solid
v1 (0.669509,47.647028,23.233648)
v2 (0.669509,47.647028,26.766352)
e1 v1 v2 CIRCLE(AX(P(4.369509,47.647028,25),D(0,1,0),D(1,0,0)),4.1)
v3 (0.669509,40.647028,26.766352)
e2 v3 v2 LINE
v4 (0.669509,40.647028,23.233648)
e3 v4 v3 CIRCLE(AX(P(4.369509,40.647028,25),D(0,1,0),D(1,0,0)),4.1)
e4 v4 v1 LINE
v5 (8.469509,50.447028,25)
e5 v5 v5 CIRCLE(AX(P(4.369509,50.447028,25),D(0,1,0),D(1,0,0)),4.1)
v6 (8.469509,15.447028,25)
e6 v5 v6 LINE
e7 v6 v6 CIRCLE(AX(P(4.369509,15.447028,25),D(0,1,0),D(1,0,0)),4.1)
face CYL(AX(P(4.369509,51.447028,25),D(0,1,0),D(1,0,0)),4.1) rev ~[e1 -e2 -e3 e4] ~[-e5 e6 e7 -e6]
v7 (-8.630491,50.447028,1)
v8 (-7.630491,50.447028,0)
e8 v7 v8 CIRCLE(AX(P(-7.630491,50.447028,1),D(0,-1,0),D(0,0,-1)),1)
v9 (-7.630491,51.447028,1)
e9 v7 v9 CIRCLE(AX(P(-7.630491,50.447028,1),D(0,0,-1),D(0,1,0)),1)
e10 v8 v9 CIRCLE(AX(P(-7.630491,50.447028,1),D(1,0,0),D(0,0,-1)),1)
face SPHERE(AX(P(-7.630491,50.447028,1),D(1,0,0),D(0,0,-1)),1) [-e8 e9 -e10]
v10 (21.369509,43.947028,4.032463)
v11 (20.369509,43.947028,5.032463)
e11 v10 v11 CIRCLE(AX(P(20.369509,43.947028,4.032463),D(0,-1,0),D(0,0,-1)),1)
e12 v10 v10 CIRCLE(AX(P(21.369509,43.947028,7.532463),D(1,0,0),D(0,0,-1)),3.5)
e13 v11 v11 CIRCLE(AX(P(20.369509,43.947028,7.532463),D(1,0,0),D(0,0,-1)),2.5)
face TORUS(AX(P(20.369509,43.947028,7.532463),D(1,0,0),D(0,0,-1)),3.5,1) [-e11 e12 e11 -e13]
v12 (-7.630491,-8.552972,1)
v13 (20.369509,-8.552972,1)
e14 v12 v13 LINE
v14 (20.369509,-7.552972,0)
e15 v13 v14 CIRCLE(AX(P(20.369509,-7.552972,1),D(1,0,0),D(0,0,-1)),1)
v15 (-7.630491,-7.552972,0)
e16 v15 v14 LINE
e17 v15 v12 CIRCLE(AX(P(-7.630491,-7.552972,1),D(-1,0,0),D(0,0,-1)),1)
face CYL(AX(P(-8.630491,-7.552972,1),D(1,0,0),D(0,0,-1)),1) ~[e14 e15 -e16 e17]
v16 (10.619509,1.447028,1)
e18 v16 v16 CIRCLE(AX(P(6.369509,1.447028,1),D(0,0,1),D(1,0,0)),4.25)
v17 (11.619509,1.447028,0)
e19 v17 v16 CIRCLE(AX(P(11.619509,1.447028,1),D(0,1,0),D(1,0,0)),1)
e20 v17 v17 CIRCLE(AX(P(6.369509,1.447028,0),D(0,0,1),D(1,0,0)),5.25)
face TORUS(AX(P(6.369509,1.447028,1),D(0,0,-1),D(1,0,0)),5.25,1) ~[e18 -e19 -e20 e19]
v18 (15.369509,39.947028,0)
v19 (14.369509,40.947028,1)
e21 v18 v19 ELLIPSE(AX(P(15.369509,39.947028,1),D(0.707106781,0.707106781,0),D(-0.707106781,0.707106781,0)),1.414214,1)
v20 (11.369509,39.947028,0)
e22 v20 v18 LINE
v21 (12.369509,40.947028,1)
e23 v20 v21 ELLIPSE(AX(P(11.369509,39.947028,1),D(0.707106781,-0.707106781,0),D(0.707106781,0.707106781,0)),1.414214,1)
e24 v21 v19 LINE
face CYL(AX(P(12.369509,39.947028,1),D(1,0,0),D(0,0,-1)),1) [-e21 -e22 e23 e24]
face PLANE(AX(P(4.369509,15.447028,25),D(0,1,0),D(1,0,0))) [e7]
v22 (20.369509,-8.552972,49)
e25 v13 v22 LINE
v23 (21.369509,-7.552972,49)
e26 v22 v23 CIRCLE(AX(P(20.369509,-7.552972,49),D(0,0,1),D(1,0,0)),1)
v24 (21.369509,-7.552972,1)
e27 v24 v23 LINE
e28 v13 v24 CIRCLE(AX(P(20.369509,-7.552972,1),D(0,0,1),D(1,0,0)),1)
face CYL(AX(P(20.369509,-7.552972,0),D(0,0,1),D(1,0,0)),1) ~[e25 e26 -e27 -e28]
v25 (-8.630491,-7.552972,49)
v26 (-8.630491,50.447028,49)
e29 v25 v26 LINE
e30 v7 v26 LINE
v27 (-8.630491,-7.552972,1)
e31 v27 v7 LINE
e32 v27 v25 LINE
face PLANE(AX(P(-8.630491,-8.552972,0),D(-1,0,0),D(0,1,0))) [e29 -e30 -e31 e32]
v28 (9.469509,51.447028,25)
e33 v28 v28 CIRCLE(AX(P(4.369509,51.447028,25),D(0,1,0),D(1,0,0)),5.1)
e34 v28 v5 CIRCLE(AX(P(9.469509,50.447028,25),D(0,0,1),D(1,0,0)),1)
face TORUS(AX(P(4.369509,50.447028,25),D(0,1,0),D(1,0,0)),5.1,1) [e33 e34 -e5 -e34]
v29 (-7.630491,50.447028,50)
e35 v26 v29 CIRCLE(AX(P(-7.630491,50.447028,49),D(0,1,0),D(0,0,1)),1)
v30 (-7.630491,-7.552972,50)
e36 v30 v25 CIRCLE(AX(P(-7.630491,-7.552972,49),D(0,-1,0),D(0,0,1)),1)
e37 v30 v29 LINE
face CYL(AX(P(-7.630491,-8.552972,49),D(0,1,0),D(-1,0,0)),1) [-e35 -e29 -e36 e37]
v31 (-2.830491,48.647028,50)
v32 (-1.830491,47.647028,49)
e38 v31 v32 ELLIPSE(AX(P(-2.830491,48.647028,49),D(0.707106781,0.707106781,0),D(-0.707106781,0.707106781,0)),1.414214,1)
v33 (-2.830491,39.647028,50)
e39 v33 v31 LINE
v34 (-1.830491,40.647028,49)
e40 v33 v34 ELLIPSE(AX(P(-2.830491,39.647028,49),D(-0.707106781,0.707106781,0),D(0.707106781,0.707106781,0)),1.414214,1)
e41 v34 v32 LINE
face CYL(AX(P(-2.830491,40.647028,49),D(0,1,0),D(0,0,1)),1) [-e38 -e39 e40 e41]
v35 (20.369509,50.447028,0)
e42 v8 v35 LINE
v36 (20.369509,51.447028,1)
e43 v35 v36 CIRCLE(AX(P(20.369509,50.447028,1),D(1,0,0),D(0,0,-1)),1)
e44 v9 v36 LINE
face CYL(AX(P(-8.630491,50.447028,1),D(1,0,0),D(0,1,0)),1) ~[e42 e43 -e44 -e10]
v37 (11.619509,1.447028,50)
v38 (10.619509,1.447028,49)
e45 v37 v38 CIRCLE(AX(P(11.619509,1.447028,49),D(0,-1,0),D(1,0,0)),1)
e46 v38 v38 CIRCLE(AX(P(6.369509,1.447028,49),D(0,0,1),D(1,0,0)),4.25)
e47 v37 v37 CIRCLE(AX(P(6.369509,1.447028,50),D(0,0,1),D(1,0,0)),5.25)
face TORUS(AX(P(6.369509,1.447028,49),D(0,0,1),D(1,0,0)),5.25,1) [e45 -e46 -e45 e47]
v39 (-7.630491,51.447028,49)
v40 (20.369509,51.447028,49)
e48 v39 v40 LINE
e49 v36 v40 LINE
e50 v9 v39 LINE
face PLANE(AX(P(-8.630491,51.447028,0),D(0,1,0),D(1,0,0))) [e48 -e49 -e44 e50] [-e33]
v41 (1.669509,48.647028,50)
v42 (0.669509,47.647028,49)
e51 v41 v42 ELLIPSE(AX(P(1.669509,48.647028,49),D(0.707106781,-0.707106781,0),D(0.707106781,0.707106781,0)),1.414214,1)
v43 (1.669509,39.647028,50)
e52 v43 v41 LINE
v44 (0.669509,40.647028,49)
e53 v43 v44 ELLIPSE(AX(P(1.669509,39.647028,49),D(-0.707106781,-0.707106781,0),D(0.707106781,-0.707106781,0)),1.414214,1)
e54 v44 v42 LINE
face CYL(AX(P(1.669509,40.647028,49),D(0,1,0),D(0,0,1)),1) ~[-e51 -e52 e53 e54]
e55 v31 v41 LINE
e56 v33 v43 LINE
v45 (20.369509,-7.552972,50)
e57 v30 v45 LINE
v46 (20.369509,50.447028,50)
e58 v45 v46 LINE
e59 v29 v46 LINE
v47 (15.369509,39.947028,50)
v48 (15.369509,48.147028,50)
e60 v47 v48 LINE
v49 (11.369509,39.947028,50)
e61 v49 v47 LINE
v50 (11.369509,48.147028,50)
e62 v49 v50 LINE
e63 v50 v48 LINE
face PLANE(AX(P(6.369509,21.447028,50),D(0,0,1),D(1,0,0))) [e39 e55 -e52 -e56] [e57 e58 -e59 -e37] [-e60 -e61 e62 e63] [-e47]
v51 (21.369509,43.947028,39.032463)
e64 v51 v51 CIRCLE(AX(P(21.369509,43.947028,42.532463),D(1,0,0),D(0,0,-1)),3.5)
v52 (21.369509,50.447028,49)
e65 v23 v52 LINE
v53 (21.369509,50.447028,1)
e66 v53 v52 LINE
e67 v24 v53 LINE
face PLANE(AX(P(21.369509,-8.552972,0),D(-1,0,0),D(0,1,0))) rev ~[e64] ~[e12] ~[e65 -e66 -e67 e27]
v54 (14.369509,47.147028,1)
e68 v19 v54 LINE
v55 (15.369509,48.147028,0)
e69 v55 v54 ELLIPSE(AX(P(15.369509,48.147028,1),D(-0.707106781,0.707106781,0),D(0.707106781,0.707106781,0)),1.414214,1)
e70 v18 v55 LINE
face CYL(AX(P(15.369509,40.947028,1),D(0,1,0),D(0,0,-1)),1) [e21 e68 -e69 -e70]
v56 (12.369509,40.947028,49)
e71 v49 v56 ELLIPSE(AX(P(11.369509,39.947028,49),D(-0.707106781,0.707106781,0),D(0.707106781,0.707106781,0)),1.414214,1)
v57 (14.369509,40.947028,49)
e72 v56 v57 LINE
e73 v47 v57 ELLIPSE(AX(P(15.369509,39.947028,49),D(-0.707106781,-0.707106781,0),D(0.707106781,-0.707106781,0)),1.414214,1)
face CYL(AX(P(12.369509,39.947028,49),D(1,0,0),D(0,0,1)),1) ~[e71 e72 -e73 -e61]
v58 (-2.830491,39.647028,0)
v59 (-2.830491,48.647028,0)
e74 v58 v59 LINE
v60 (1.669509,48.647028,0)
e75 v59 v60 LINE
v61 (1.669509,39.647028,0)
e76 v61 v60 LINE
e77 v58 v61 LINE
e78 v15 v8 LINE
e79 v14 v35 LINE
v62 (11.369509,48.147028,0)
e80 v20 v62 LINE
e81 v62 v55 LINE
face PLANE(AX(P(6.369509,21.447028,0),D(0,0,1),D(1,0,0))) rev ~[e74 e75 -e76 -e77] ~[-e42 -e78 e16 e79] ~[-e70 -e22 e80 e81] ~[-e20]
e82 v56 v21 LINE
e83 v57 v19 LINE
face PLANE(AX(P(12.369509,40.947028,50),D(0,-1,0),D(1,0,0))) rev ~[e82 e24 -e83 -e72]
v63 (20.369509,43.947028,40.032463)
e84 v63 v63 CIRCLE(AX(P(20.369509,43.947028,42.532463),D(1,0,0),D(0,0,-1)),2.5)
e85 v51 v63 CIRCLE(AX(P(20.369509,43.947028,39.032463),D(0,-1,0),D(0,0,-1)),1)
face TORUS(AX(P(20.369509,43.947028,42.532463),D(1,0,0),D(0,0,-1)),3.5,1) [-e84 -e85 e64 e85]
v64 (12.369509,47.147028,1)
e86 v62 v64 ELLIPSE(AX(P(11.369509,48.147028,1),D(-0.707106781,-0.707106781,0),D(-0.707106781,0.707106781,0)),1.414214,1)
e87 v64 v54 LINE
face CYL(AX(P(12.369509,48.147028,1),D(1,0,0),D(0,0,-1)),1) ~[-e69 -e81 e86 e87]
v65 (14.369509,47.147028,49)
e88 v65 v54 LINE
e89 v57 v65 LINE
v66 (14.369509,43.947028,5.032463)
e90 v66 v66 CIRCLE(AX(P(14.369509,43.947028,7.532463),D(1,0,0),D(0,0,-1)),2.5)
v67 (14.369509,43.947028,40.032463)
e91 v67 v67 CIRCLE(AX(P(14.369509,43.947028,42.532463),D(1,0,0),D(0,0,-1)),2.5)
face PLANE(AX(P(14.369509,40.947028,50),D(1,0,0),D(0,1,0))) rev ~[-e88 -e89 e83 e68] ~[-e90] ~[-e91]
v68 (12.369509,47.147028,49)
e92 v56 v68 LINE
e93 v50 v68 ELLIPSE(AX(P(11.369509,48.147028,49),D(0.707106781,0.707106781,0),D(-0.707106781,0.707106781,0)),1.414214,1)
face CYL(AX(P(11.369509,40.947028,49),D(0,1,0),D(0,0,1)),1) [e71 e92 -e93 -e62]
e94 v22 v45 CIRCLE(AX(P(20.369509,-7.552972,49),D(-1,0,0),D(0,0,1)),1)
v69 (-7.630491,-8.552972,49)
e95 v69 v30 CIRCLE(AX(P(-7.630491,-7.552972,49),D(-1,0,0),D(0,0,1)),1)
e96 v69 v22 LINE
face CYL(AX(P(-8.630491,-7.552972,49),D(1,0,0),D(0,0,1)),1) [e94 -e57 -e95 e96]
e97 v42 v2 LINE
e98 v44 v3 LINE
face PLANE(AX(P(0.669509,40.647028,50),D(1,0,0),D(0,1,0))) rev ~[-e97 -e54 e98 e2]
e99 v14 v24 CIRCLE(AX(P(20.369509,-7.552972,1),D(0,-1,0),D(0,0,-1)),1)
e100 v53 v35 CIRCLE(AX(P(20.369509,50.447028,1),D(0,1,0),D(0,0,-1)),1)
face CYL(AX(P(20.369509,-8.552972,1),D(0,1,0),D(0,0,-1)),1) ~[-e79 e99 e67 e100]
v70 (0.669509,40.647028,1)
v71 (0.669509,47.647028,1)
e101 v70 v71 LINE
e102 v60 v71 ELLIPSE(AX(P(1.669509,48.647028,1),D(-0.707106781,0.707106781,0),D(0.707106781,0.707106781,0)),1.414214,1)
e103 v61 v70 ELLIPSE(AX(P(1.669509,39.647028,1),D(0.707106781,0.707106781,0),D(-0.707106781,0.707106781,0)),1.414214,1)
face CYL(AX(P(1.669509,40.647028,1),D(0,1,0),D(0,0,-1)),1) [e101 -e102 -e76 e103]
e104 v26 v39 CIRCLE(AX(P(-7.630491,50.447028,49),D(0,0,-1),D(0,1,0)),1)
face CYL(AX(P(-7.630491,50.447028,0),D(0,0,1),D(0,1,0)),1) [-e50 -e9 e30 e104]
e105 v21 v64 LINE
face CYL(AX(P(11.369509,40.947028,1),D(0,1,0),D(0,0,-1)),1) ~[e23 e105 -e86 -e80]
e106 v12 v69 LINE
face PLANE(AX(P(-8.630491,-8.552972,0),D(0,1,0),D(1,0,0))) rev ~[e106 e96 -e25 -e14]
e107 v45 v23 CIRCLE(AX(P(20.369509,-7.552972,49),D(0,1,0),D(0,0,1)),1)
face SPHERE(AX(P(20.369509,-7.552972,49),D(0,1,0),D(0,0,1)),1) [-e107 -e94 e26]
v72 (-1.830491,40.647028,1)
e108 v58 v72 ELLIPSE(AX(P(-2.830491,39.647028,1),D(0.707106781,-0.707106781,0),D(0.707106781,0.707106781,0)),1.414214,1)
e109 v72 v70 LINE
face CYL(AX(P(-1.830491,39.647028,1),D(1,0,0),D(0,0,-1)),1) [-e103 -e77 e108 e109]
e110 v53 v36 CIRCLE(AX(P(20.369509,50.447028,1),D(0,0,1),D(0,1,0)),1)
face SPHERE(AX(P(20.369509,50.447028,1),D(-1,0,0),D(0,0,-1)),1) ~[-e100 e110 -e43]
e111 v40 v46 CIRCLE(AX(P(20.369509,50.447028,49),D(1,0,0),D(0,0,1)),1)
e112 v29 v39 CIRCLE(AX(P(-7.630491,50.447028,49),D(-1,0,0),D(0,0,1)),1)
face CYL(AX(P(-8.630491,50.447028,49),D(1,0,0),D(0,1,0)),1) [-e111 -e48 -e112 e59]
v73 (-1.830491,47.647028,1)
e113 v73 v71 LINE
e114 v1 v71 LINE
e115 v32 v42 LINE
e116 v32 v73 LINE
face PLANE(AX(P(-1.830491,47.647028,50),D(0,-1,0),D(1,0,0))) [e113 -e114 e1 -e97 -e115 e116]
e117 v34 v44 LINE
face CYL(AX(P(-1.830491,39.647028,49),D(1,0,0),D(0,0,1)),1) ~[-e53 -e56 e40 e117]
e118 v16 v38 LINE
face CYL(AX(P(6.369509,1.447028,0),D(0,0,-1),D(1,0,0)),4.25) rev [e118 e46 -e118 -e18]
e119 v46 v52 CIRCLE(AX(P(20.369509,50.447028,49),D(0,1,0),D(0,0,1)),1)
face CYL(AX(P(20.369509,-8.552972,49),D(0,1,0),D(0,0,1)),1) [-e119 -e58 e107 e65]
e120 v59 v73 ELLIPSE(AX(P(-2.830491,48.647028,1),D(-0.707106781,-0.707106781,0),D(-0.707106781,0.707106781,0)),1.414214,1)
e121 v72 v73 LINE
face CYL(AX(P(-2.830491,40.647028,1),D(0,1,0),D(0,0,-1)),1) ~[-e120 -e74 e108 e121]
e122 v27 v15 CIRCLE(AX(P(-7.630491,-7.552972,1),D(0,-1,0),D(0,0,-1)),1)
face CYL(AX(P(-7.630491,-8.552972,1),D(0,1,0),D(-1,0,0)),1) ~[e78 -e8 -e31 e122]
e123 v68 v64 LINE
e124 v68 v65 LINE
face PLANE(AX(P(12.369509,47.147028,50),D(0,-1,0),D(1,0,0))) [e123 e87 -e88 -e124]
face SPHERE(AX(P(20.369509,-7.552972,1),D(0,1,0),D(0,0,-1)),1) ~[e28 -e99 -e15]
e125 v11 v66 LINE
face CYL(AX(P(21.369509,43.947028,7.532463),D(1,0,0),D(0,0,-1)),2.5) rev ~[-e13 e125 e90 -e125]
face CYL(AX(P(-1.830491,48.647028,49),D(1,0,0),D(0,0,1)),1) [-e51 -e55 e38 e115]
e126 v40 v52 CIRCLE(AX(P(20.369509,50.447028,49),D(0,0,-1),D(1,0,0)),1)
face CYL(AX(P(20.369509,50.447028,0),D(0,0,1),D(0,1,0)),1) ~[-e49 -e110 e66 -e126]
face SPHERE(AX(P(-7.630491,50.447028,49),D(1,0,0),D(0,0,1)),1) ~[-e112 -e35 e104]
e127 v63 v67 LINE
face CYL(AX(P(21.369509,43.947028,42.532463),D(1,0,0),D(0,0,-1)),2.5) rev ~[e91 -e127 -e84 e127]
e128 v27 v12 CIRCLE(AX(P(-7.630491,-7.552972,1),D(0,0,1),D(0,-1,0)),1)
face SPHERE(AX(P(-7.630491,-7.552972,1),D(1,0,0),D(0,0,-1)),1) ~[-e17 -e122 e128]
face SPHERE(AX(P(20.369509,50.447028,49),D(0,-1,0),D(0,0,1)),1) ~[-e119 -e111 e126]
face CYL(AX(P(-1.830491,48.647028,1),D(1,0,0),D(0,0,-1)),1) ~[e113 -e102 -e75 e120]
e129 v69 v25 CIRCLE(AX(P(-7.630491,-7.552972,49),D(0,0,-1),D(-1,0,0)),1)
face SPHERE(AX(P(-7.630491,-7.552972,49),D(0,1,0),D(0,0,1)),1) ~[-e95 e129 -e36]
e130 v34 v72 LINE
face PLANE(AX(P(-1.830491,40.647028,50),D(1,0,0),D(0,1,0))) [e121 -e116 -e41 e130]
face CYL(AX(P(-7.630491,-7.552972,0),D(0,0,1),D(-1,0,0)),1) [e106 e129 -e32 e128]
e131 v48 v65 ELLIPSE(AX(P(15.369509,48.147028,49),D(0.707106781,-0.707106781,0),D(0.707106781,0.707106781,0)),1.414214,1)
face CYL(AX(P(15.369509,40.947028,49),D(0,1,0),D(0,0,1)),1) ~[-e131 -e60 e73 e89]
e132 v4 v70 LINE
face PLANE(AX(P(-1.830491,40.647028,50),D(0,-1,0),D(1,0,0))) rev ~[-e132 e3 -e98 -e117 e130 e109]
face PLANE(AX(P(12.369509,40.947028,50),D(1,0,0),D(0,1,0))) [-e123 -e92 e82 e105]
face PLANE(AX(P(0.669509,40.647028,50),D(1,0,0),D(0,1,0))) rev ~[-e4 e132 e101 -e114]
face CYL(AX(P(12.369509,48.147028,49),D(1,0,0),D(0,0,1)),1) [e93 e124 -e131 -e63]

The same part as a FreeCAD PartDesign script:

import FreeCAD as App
import Part
import Sketcher


def edges_at(feature, points):
    """Names of the edges that pass closest to the given points."""
    edges = feature.Shape.Edges
    near = lambda p: min(range(len(edges)), key=lambda i: edges[i].distToShape(Part.Vertex(*p))[0])
    return sorted({f"Edge{near(p) + 1}" for p in points})

doc = App.newDocument("Part")
body = doc.addObject("PartDesign::Body", "Body")

sketch1 = doc.addObject("Sketcher::SketchObject", "Sketch")
body.addObject(sketch1)
sketch1.AttachmentSupport = (doc.XY_Plane, [""])
sketch1.MapMode = "FlatFace"
sketch1.addGeometry([
    Part.LineSegment(App.Vector(-8.630491, 51.447028, 0), App.Vector(-8.630491, -8.552972, 0)),
    Part.LineSegment(App.Vector(-8.630491, -8.552972, 0), App.Vector(21.369509, -8.552972, 0)),
    Part.LineSegment(App.Vector(21.369509, -8.552972, 0), App.Vector(21.369509, 51.447028, 0)),
    Part.LineSegment(App.Vector(21.369509, 51.447028, 0), App.Vector(-8.630491, 51.447028, 0)),
    Part.Circle(App.Vector(6.369509, 1.447028, 0), App.Vector(0, 0, 1), 4.25),
], False)
sketch1.addConstraint([
    Sketcher.Constraint("Coincident", 0, 2, 1, 1),
    Sketcher.Constraint("Coincident", 1, 2, 2, 1),
    Sketcher.Constraint("Coincident", 2, 2, 3, 1),
    Sketcher.Constraint("Coincident", 3, 2, 0, 1),
    Sketcher.Constraint("Vertical", 0),
    Sketcher.Constraint("Horizontal", 1),
    Sketcher.Constraint("Vertical", 2),
    Sketcher.Constraint("Horizontal", 3),
    Sketcher.Constraint("Diameter", 4, 8.5),
    Sketcher.Constraint("DistanceX", 1, 1, 1, 2, 30.0),
    Sketcher.Constraint("DistanceY", 0, 2, 0, 1, 60.0),
    Sketcher.Constraint("DistanceX", 0, 2, 4, 3, 15.0),
    Sketcher.Constraint("DistanceY", 0, 2, 4, 3, 10.0),
    Sketcher.Constraint("DistanceX", -1, 1, 4, 3, 6.369509),
    Sketcher.Constraint("DistanceY", -1, 1, 4, 3, 1.447028),
])
pad1 = doc.addObject("PartDesign::Pad", "Pad")
body.addObject(pad1)
pad1.Profile = sketch1
pad1.Length = 50

sketch2 = doc.addObject("Sketcher::SketchObject", "Sketch001")
body.addObject(sketch2)
sketch2.AttachmentSupport = (doc.XY_Plane, [""])
sketch2.MapMode = "FlatFace"
sketch2.AttachmentOffset = App.Placement(App.Vector(0, 0, 50), App.Rotation())
sketch2.addGeometry([
    Part.LineSegment(App.Vector(-1.830491, 47.647028, 0), App.Vector(-1.830491, 40.647028, 0)),
    Part.LineSegment(App.Vector(-1.830491, 40.647028, 0), App.Vector(0.669509, 40.647028, 0)),
    Part.LineSegment(App.Vector(0.669509, 40.647028, 0), App.Vector(0.669509, 47.647028, 0)),
    Part.LineSegment(App.Vector(0.669509, 47.647028, 0), App.Vector(-1.830491, 47.647028, 0)),
    Part.LineSegment(App.Vector(12.369509, 47.147028, 0), App.Vector(12.369509, 40.947028, 0)),
    Part.LineSegment(App.Vector(12.369509, 40.947028, 0), App.Vector(14.369509, 40.947028, 0)),
    Part.LineSegment(App.Vector(14.369509, 40.947028, 0), App.Vector(14.369509, 47.147028, 0)),
    Part.LineSegment(App.Vector(14.369509, 47.147028, 0), App.Vector(12.369509, 47.147028, 0)),
], False)
sketch2.addConstraint([
    Sketcher.Constraint("Coincident", 0, 2, 1, 1),
    Sketcher.Constraint("Coincident", 1, 2, 2, 1),
    Sketcher.Constraint("Coincident", 2, 2, 3, 1),
    Sketcher.Constraint("Coincident", 3, 2, 0, 1),
    Sketcher.Constraint("Coincident", 4, 2, 5, 1),
    Sketcher.Constraint("Coincident", 5, 2, 6, 1),
    Sketcher.Constraint("Coincident", 6, 2, 7, 1),
    Sketcher.Constraint("Coincident", 7, 2, 4, 1),
    Sketcher.Constraint("Vertical", 0),
    Sketcher.Constraint("Horizontal", 1),
    Sketcher.Constraint("Vertical", 2),
    Sketcher.Constraint("Horizontal", 3),
    Sketcher.Constraint("Vertical", 4),
    Sketcher.Constraint("Horizontal", 5),
    Sketcher.Constraint("Vertical", 6),
    Sketcher.Constraint("Horizontal", 7),
    Sketcher.Constraint("DistanceX", 5, 1, 5, 2, 2.0),
    Sketcher.Constraint("DistanceY", 0, 2, 0, 1, 7.0),
    Sketcher.Constraint("DistanceX", 1, 1, 1, 2, 2.5),
    Sketcher.Constraint("DistanceY", 4, 2, 4, 1, 6.2),
    Sketcher.Constraint("DistanceX", 1, 2, 4, 2, 11.7),
    Sketcher.Constraint("DistanceY", 1, 2, 4, 2, 0.3),
    Sketcher.Constraint("DistanceX", 0, 2, -1, 1, 1.830491),
    Sketcher.Constraint("DistanceY", -1, 1, 0, 2, 40.647028),
])
pocket1 = doc.addObject("PartDesign::Pocket", "Pocket")
body.addObject(pocket1)
pocket1.Profile = sketch2
pocket1.Length = 50

sketch3 = doc.addObject("Sketcher::SketchObject", "Sketch002")
body.addObject(sketch3)
sketch3.AttachmentSupport = (doc.YZ_Plane, [""])
sketch3.MapMode = "FlatFace"
sketch3.AttachmentOffset = App.Placement(App.Vector(0, 0, 21.369509), App.Rotation())
sketch3.addGeometry([
    Part.Circle(App.Vector(43.947028, 42.532463, 0), App.Vector(0, 0, 1), 2.5),
    Part.Circle(App.Vector(43.947028, 7.532463, 0), App.Vector(0, 0, 1), 2.5),
], False)
sketch3.addConstraint([
    Sketcher.Constraint("Equal", 0, 1),
    Sketcher.Constraint("Vertical", 0, 3, 1, 3),
    Sketcher.Constraint("Diameter", 0, 5.0),
    Sketcher.Constraint("DistanceY", 1, 3, 0, 3, 35.0),
    Sketcher.Constraint("DistanceX", -1, 1, 0, 3, 43.947028),
    Sketcher.Constraint("DistanceY", -1, 1, 0, 3, 42.532463),
])
pocket2 = doc.addObject("PartDesign::Pocket", "Pocket001")
body.addObject(pocket2)
pocket2.Profile = sketch3
pocket2.Type = "TwoLengths"
pocket2.Length = 1
pocket2.Length2 = 7
pocket2.Reversed = True
doc.recompute()

fillet = doc.addObject("PartDesign::Fillet", "Fillet")
body.addObject(fillet)
fillet.Base = (pocket2, edges_at(pocket2, [
    (12.37, 44.047, 50),
    (13.37, 40.947, 50),
    (14.37, 44.047, 50),
    (13.37, 47.147, 50),
]))
fillet.Radius = 1
doc.recompute()

fillet2 = doc.addObject("PartDesign::Fillet", "Fillet001")
body.addObject(fillet2)
fillet2.Base = (fillet, edges_at(fillet, [
    (-1.83, 44.147, 50),
    (-0.58, 40.647, 50),
    (0.67, 44.147, 50),
    (-0.58, 47.647, 50),
]))
fillet2.Radius = 1
doc.recompute()

fillet3 = doc.addObject("PartDesign::Fillet", "Fillet002")
body.addObject(fillet3)
fillet3.Base = (fillet2, edges_at(fillet2, [(2.12, 1.447, 50)]))
fillet3.Radius = 1
doc.recompute()

fillet4 = doc.addObject("PartDesign::Fillet", "Fillet003")
body.addObject(fillet4)
fillet4.Base = (fillet3, edges_at(fillet3, [(21.37, 43.947, 45.032)]))
fillet4.Radius = 1
doc.recompute()

fillet5 = doc.addObject("PartDesign::Fillet", "Fillet004")
body.addObject(fillet5)
fillet5.Base = (fillet4, edges_at(fillet4, [(21.37, 43.947, 10.032)]))
fillet5.Radius = 1
doc.recompute()

fillet6 = doc.addObject("PartDesign::Fillet", "Fillet005")
body.addObject(fillet6)
fillet6.Base = (fillet5, edges_at(fillet5, [
    (2.12, 1.447, 0),
    (-1.83, 44.147, 0),
    (-0.58, 47.647, 0),
    (0.67, 44.147, 0),
    (-0.58, 40.647, 0),
    (12.37, 44.047, 0),
    (13.37, 47.147, 0),
    (14.37, 44.047, 0),
    (13.37, 40.947, 0),
]))
fillet6.Radius = 1

sketch4 = doc.addObject("Sketcher::SketchObject", "Sketch003")
body.addObject(sketch4)
sketch4.AttachmentSupport = (doc.XZ_Plane, [""])
sketch4.MapMode = "FlatFace"
sketch4.AttachmentOffset = App.Placement(App.Vector(0, 0, -51.447028), App.Rotation())
sketch4.addGeometry(Part.Circle(App.Vector(4.369509, 25, 0), App.Vector(0, 0, 1), 4.1), False)
sketch4.addConstraint([
    Sketcher.Constraint("Diameter", 0, 8.2),
    Sketcher.Constraint("DistanceY", -1, 1, 0, 3, 25.0),
    Sketcher.Constraint("DistanceX", -1, 1, 0, 3, 4.369509),
])
pocket3 = doc.addObject("PartDesign::Pocket", "Pocket002")
body.addObject(pocket3)
pocket3.Profile = sketch4
pocket3.Length = 36
pocket3.Reversed = True
doc.recompute()

fillet7 = doc.addObject("PartDesign::Fillet", "Fillet006")
body.addObject(fillet7)
fillet7.Base = (pocket3, edges_at(pocket3, [(0.27, 51.447, 25)]))
fillet7.Radius = 1
doc.recompute()

fillet8 = doc.addObject("PartDesign::Fillet", "Fillet007")
body.addObject(fillet8)
fillet8.Base = (fillet7, edges_at(fillet7, [
    (21.37, 21.447, 50),
    (6.37, 51.447, 50),
    (-8.63, 21.447, 50),
    (6.37, 51.447, 0),
    (21.37, 21.447, 0),
    (6.37, -8.553, 0),
    (-8.63, 21.447, 0),
    (6.37, -8.553, 50),
    (-8.63, 51.447, 25),
    (21.37, 51.447, 25),
    (21.37, -8.553, 25),
    (-8.63, -8.553, 25),
]))
fillet8.Radius = 1

doc.recompute()
